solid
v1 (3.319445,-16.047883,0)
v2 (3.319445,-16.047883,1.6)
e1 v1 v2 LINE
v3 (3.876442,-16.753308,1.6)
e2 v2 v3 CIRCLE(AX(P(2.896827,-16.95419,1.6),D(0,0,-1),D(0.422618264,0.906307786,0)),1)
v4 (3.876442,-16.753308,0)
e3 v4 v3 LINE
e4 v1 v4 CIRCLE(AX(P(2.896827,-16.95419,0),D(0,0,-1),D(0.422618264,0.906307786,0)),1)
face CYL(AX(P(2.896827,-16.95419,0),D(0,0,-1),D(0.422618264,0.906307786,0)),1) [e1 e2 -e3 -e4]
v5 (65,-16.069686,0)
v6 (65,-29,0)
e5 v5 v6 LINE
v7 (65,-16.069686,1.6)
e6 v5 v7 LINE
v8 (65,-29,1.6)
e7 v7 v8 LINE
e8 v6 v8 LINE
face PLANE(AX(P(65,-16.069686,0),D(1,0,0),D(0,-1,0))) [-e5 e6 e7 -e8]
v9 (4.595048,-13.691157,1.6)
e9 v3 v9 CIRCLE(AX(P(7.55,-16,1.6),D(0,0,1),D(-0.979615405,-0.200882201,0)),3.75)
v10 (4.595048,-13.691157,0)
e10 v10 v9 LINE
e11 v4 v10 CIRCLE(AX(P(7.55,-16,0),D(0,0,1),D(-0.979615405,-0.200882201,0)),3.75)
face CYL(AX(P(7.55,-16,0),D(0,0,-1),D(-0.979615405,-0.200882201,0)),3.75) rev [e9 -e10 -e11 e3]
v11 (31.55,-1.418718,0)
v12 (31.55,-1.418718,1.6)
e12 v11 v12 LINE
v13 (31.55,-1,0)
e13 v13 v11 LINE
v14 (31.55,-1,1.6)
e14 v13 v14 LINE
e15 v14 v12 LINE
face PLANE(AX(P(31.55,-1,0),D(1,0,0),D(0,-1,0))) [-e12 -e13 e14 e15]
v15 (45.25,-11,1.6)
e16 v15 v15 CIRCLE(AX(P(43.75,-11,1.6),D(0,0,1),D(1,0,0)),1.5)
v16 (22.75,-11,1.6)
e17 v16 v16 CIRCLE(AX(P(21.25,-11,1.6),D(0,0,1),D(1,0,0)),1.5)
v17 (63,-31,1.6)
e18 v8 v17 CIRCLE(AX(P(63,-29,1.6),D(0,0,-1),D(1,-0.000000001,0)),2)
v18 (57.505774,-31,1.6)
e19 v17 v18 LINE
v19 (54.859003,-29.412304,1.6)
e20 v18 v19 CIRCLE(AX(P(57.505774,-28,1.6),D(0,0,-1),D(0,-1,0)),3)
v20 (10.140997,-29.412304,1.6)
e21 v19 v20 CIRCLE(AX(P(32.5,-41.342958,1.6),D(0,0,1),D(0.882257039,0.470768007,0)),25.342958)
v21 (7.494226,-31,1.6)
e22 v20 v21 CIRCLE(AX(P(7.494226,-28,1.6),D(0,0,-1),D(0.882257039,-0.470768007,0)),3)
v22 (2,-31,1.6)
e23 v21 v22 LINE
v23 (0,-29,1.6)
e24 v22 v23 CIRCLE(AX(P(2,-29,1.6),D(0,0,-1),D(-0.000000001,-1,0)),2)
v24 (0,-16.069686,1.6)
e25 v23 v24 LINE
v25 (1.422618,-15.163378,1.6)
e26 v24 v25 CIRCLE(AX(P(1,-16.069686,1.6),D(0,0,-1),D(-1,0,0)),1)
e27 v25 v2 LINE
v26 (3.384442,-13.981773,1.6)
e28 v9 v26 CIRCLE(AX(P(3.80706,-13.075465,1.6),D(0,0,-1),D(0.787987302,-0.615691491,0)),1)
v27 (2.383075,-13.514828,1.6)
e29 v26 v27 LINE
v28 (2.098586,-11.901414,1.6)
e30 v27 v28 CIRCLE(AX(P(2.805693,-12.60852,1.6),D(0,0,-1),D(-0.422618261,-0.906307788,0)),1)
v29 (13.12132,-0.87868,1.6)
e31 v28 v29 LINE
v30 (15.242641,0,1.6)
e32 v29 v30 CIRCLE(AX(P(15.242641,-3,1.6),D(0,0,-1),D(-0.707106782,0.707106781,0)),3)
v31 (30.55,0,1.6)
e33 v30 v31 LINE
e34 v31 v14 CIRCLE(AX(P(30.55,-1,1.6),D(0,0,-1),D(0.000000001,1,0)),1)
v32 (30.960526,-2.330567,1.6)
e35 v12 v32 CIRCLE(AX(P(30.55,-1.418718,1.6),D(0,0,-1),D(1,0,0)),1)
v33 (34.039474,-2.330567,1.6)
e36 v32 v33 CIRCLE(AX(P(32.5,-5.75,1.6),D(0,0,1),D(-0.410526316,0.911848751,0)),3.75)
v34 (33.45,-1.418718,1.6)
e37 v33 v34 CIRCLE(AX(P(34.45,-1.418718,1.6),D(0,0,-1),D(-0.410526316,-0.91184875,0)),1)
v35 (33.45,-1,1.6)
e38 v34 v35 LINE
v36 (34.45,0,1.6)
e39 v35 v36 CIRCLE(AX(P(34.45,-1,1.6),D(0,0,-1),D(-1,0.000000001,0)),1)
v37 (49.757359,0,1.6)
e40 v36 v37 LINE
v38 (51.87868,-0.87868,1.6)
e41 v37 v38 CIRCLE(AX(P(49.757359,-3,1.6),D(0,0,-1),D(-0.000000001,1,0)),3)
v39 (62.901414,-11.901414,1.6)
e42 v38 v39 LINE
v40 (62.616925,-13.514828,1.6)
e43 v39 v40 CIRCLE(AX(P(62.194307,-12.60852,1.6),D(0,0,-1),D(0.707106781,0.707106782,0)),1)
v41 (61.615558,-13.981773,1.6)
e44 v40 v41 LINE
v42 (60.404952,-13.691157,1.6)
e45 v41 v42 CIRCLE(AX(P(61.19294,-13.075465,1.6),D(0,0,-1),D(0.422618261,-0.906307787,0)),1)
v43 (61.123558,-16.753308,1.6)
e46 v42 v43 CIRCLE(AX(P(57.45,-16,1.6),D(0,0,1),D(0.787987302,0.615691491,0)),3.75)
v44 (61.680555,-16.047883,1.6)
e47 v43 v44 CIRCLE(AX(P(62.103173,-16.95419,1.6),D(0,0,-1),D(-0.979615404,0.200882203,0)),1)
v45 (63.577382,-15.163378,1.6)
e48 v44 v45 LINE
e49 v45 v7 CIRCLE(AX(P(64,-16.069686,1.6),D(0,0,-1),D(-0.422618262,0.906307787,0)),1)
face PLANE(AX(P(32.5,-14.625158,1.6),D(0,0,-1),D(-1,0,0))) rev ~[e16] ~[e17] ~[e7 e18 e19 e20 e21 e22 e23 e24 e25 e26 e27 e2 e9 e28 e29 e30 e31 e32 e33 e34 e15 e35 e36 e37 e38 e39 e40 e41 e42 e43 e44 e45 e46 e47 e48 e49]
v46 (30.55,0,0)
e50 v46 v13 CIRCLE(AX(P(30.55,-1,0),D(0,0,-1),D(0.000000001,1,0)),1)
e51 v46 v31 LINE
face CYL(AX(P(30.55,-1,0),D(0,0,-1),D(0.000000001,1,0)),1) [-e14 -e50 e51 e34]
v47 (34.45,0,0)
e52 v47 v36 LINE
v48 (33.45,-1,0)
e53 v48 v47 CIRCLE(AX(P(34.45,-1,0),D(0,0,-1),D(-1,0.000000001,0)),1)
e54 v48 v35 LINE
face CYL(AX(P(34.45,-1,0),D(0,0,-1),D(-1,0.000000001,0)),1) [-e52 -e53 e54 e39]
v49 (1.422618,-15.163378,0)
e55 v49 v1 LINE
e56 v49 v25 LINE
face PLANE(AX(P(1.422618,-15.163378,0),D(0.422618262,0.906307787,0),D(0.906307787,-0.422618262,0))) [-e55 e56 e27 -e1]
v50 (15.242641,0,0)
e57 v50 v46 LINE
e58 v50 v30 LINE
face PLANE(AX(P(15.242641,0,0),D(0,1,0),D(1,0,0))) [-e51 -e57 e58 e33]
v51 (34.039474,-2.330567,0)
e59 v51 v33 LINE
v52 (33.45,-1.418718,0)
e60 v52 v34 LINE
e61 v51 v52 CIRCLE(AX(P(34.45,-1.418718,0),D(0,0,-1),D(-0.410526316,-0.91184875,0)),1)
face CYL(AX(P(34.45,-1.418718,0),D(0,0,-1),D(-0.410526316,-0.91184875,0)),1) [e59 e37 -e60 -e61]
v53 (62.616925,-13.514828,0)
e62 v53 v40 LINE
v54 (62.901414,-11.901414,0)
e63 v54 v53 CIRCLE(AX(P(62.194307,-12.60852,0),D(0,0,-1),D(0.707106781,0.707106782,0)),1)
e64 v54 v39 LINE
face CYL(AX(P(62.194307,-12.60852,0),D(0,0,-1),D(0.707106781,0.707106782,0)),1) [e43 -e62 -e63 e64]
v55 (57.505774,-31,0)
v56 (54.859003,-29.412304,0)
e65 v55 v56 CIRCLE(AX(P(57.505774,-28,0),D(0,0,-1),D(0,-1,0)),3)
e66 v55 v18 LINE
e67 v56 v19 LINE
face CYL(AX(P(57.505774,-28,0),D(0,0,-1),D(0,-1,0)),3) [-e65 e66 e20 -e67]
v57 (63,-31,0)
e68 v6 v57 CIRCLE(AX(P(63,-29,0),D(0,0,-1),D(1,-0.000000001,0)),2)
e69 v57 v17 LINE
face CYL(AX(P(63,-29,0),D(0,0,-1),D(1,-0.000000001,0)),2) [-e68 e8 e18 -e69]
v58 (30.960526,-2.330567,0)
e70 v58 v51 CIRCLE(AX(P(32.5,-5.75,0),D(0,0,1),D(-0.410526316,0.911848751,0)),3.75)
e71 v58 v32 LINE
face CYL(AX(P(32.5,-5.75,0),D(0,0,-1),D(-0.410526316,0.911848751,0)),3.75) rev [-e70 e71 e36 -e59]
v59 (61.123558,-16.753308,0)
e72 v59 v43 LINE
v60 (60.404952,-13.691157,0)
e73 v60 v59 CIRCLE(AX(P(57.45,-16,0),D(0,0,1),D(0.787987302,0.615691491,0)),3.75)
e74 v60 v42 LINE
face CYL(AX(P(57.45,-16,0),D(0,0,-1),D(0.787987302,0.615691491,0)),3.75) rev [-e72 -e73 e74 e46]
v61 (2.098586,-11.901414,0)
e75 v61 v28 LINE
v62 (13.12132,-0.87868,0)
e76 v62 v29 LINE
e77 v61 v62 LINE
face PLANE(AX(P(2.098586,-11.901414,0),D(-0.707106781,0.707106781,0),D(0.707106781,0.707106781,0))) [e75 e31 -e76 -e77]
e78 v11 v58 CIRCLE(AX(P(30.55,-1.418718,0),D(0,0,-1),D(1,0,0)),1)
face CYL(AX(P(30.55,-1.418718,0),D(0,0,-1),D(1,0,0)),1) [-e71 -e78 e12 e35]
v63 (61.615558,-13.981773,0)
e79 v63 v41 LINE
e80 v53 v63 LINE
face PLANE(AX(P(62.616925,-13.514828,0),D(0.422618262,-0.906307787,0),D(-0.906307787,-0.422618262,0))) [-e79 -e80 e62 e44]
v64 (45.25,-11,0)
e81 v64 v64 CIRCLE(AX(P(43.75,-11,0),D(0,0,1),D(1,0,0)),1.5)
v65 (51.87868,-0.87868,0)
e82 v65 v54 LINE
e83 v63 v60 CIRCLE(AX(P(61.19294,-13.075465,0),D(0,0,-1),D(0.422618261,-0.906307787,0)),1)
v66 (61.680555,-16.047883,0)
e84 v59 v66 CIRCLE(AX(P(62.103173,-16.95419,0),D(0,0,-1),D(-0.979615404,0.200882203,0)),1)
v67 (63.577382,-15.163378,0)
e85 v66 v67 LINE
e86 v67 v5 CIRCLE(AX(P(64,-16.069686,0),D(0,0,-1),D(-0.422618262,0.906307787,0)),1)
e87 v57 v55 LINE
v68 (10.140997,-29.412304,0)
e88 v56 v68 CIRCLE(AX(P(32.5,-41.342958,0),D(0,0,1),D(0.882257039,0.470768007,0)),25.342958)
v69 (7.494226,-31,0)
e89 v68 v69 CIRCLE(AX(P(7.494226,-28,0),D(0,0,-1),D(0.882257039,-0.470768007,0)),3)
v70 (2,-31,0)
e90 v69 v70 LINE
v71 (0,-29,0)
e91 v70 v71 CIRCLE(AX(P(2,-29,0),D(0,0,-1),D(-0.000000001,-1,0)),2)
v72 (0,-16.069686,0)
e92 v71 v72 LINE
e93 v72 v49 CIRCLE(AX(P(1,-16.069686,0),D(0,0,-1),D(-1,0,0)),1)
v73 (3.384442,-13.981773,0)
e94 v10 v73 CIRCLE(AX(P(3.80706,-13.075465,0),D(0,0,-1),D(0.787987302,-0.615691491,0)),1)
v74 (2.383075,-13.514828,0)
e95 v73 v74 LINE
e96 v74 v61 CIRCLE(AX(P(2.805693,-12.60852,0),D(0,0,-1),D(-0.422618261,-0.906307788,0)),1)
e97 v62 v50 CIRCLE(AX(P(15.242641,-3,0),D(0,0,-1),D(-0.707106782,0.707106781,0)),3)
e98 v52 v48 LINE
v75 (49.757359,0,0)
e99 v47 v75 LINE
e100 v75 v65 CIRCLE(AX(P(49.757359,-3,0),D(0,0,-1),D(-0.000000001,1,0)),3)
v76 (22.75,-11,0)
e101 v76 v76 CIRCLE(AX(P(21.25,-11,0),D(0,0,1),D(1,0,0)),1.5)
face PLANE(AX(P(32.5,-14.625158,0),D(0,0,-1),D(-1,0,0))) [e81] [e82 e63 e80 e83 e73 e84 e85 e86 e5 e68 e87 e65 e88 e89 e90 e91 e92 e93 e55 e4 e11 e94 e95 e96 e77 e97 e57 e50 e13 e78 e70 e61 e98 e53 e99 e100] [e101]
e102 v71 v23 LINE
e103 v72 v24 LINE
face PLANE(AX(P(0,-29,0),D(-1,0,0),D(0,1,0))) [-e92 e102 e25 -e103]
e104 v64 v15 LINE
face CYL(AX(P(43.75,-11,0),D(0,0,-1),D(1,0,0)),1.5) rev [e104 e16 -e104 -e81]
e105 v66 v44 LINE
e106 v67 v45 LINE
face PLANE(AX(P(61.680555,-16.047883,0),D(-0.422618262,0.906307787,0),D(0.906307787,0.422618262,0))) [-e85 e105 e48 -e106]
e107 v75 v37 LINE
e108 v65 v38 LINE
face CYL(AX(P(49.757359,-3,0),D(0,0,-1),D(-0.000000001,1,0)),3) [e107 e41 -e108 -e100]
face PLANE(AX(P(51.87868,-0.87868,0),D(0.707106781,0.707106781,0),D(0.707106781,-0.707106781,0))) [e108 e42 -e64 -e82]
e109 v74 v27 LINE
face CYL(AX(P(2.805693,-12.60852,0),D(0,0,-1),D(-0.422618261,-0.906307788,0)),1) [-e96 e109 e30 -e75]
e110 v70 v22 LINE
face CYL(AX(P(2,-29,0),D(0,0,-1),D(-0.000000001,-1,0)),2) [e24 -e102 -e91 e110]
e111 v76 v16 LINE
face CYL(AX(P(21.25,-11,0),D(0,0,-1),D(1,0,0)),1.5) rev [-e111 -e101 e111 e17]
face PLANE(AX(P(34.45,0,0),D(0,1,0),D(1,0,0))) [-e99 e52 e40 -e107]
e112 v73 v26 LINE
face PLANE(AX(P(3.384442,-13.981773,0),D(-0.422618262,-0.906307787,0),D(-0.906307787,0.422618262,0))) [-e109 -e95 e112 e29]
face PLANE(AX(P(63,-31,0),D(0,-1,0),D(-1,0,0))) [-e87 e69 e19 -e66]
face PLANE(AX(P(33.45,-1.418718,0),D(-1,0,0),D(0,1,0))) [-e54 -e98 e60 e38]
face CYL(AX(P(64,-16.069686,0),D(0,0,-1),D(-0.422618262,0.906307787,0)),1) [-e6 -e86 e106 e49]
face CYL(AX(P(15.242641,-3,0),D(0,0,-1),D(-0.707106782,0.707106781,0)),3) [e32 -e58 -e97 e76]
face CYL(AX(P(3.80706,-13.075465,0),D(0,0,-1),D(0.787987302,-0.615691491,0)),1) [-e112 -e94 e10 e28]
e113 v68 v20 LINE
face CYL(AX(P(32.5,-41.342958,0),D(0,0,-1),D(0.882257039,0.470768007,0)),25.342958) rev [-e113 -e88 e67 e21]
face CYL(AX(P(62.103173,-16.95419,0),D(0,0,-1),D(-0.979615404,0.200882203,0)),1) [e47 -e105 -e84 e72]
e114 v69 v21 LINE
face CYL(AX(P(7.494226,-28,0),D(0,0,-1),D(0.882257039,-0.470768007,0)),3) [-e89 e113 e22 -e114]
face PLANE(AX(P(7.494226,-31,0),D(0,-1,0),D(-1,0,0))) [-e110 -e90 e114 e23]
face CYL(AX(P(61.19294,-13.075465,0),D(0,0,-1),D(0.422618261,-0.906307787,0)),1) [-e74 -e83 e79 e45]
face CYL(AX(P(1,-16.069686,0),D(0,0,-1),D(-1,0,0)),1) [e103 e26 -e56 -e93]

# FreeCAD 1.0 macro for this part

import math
import FreeCAD as App
import Part
import Sketcher
from FreeCAD import Vector
Q = App.Units.Quantity

doc = App.newDocument("Part")
body = doc.addObject("PartDesign::Body", "Body")

# Sketch on XY plane
sketch1 = body.newObject("Sketcher::SketchObject", "Sketch")
sketch1.AttachmentSupport = (doc.getObject("XY_Plane"), [""])
sketch1.MapMode = "FlatFace"
sketch1.addGeometry([
    Part.LineSegment(Vector(62.9, -11.9, 0), Vector(51.88, -0.88, 0)),  # 0
    Part.ArcOfCircle(Part.Circle(Vector(49.76, -3, 0), Vector(0, 0, 1), 3), math.radians(45), math.radians(90)),  # 1
    Part.LineSegment(Vector(49.76, 0, 0), Vector(34.45, 0, 0)),  # 2
    Part.ArcOfCircle(Part.Circle(Vector(34.45, -1, 0), Vector(0, 0, 1), 1), math.radians(90), math.radians(180)),  # 3
    Part.LineSegment(Vector(33.45, -1, 0), Vector(33.45, -1.42, 0)),  # 4
    Part.ArcOfCircle(Part.Circle(Vector(34.45, -1.42, 0), Vector(0, 0, 1), 1), math.radians(180), math.radians(246)),  # 5
    Part.ArcOfCircle(Part.Circle(Vector(32.5, -5.75, 0), Vector(0, 0, 1), 3.75), math.radians(114), math.radians(426)),  # 6
    Part.ArcOfCircle(Part.Circle(Vector(30.55, -1.42, 0), Vector(0, 0, 1), 1), math.radians(-66), math.radians(0)),  # 7
    Part.LineSegment(Vector(31.55, -1.42, 0), Vector(31.55, -1, 0)),  # 8
    Part.ArcOfCircle(Part.Circle(Vector(30.55, -1, 0), Vector(0, 0, 1), 1), math.radians(0), math.radians(90)),  # 9
    Part.LineSegment(Vector(30.55, 0, 0), Vector(15.24, 0, 0)),  # 10
    Part.ArcOfCircle(Part.Circle(Vector(15.24, -3, 0), Vector(0, 0, 1), 3), math.radians(90), math.radians(135)),  # 11
    Part.LineSegment(Vector(13.12, -0.88, 0), Vector(2.1, -11.9, 0)),  # 12
    Part.ArcOfCircle(Part.Circle(Vector(2.81, -12.61, 0), Vector(0, 0, 1), 1), math.radians(135), math.radians(245)),  # 13
    Part.LineSegment(Vector(2.38, -13.51, 0), Vector(3.38, -13.98, 0)),  # 14
    Part.ArcOfCircle(Part.Circle(Vector(3.81, -13.08, 0), Vector(0, 0, 1), 1), math.radians(-115), math.radians(-38)),  # 15
    Part.ArcOfCircle(Part.Circle(Vector(7.55, -16, 0), Vector(0, 0, 1), 3.75), math.radians(-168), math.radians(142)),  # 16
    Part.ArcOfCircle(Part.Circle(Vector(2.9, -16.95, 0), Vector(0, 0, 1), 1), math.radians(12), math.radians(65)),  # 17
    Part.LineSegment(Vector(3.32, -16.05, 0), Vector(1.42, -15.16, 0)),  # 18
    Part.ArcOfCircle(Part.Circle(Vector(1, -16.07, 0), Vector(0, 0, 1), 1), math.radians(65), math.radians(180)),  # 19
    Part.LineSegment(Vector(0, -16.07, 0), Vector(0, -29, 0)),  # 20
    Part.ArcOfCircle(Part.Circle(Vector(2, -29, 0), Vector(0, 0, 1), 2), math.radians(-180), math.radians(-90)),  # 21
    Part.LineSegment(Vector(2, -31, 0), Vector(7.49, -31, 0)),  # 22
    Part.ArcOfCircle(Part.Circle(Vector(7.49, -28, 0), Vector(0, 0, 1), 3), math.radians(-90), math.radians(-28)),  # 23
    Part.ArcOfCircle(Part.Circle(Vector(32.5, -41.34, 0), Vector(0, 0, 1), 25.34), math.radians(28), math.radians(152)),  # 24
    Part.ArcOfCircle(Part.Circle(Vector(57.51, -28, 0), Vector(0, 0, 1), 3), math.radians(-152), math.radians(-90)),  # 25
    Part.LineSegment(Vector(57.51, -31, 0), Vector(63, -31, 0)),  # 26
    Part.ArcOfCircle(Part.Circle(Vector(63, -29, 0), Vector(0, 0, 1), 2), math.radians(-90), math.radians(0)),  # 27
    Part.LineSegment(Vector(65, -29, 0), Vector(65, -16.07, 0)),  # 28
    Part.ArcOfCircle(Part.Circle(Vector(64, -16.07, 0), Vector(0, 0, 1), 1), math.radians(0), math.radians(115)),  # 29
    Part.LineSegment(Vector(63.58, -15.16, 0), Vector(61.68, -16.05, 0)),  # 30
    Part.ArcOfCircle(Part.Circle(Vector(62.1, -16.95, 0), Vector(0, 0, 1), 1), math.radians(115), math.radians(168)),  # 31
    Part.ArcOfCircle(Part.Circle(Vector(57.45, -16, 0), Vector(0, 0, 1), 3.75), math.radians(38), math.radians(348)),  # 32
    Part.ArcOfCircle(Part.Circle(Vector(61.19, -13.08, 0), Vector(0, 0, 1), 1), math.radians(-142), math.radians(-65)),  # 33
    Part.LineSegment(Vector(61.62, -13.98, 0), Vector(62.62, -13.51, 0)),  # 34
    Part.ArcOfCircle(Part.Circle(Vector(62.19, -12.61, 0), Vector(0, 0, 1), 1), math.radians(-65), math.radians(45)),  # 35
    Part.Circle(Vector(43.75, -11, 0), Vector(0, 0, 1), 1.5),  # 36
    Part.Circle(Vector(21.25, -11, 0), Vector(0, 0, 1), 1.5),  # 37
], False)
sketch1.addConstraint([
    Sketcher.Constraint("Tangent", 0, 2, 1, 1),
    Sketcher.Constraint("Tangent", 1, 2, 2, 1),
    Sketcher.Constraint("Tangent", 2, 2, 3, 1),
    Sketcher.Constraint("Tangent", 3, 2, 4, 1),
    Sketcher.Constraint("Tangent", 4, 2, 5, 1),
    Sketcher.Constraint("Tangent", 5, 2, 6, 2),
    Sketcher.Constraint("Tangent", 6, 1, 7, 1),
    Sketcher.Constraint("Tangent", 7, 2, 8, 1),
    Sketcher.Constraint("Tangent", 8, 2, 9, 1),
    Sketcher.Constraint("Tangent", 9, 2, 10, 1),
    Sketcher.Constraint("Tangent", 10, 2, 11, 1),
    Sketcher.Constraint("Tangent", 11, 2, 12, 1),
    Sketcher.Constraint("Tangent", 12, 2, 13, 1),
    Sketcher.Constraint("Tangent", 13, 2, 14, 1),
    Sketcher.Constraint("Tangent", 14, 2, 15, 1),
    Sketcher.Constraint("Tangent", 15, 2, 16, 2),
    Sketcher.Constraint("Tangent", 16, 1, 17, 1),
    Sketcher.Constraint("Tangent", 17, 2, 18, 1),
    Sketcher.Constraint("Tangent", 18, 2, 19, 1),
    Sketcher.Constraint("Tangent", 19, 2, 20, 1),
    Sketcher.Constraint("Tangent", 20, 2, 21, 1),
    Sketcher.Constraint("Tangent", 21, 2, 22, 1),
    Sketcher.Constraint("Tangent", 22, 2, 23, 1),
    Sketcher.Constraint("Tangent", 23, 2, 24, 2),
    Sketcher.Constraint("Tangent", 24, 1, 25, 1),
    Sketcher.Constraint("Tangent", 25, 2, 26, 1),
    Sketcher.Constraint("Tangent", 26, 2, 27, 1),
    Sketcher.Constraint("Tangent", 27, 2, 28, 1),
    Sketcher.Constraint("Tangent", 28, 2, 29, 1),
    Sketcher.Constraint("Tangent", 29, 2, 30, 1),
    Sketcher.Constraint("Tangent", 30, 2, 31, 1),
    Sketcher.Constraint("Tangent", 31, 2, 32, 2),
    Sketcher.Constraint("Tangent", 32, 1, 33, 1),
    Sketcher.Constraint("Tangent", 33, 2, 34, 1),
    Sketcher.Constraint("Tangent", 34, 2, 35, 1),
    Sketcher.Constraint("Tangent", 35, 2, 0, 1),
    Sketcher.Constraint("Horizontal", 2),
    Sketcher.Constraint("Vertical", 4),
    Sketcher.Constraint("Vertical", 8),
    Sketcher.Constraint("Horizontal", 10),
    Sketcher.Constraint("Vertical", 20),
    Sketcher.Constraint("Horizontal", 22),
    Sketcher.Constraint("Horizontal", 26),
    Sketcher.Constraint("Vertical", 28),
    Sketcher.Constraint("Equal", 3, 5),
    Sketcher.Constraint("Equal", 5, 7),
    Sketcher.Constraint("Equal", 7, 9),
    Sketcher.Constraint("Equal", 1, 11),
    Sketcher.Constraint("Equal", 9, 13),
    Sketcher.Constraint("Equal", 13, 15),
    Sketcher.Constraint("Equal", 6, 16),
    Sketcher.Constraint("Equal", 15, 17),
    Sketcher.Constraint("Equal", 17, 19),
    Sketcher.Constraint("Equal", 11, 23),
    Sketcher.Constraint("Equal", 23, 25),
    Sketcher.Constraint("Equal", 21, 27),
    Sketcher.Constraint("Equal", 19, 29),
    Sketcher.Constraint("Equal", 29, 31),
    Sketcher.Constraint("Equal", 16, 32),
    Sketcher.Constraint("Equal", 31, 33),
    Sketcher.Constraint("Equal", 33, 35),
    Sketcher.Constraint("Equal", 36, 37),
    Sketcher.Constraint("PointOnObject", 1, 2, -1),
    Sketcher.Constraint("PointOnObject", 9, 2, -1),
    Sketcher.Constraint("PointOnObject", 19, 2, -2),
    Sketcher.Constraint("Perpendicular", 0, 12),
    Sketcher.Constraint("Parallel", 14, 18),
    Sketcher.Constraint("Parallel", 30, 34),
    Sketcher.Constraint("Horizontal", 5, 3, 7, 3),
    Sketcher.Constraint("Horizontal", 23, 3, 25, 3),
    Sketcher.Constraint("Horizontal", 19, 3, 29, 3),
    Sketcher.Constraint("Horizontal", 17, 3, 31, 3),
    Sketcher.Constraint("Horizontal", 16, 3, 32, 3),
    Sketcher.Constraint("Horizontal", 15, 3, 33, 3),
    Sketcher.Constraint("Horizontal", 13, 3, 35, 3),
    Sketcher.Constraint("Horizontal", 36, 3, 37, 3),
    Sketcher.Constraint("Horizontal", 0, 2, 11, 2),
    Sketcher.Constraint("Horizontal", 18, 2, 29, 2),
    Sketcher.Constraint("Vertical", 6, 3, 24, 3),
    Sketcher.Constraint("Equal", 2, 10),
    Sketcher.Constraint("Diameter", 36, 3.0),
    Sketcher.Constraint("Radius", 1, 3.0),
    Sketcher.Constraint("Radius", 3, 1.0),
    Sketcher.Constraint("Radius", 21, 2.0),
    Sketcher.Constraint("Angle", 14, Q("-25 deg")),
    Sketcher.Constraint("Radius", 6, 3.75),
    Sketcher.Constraint("DistanceY", 16, 3, -1, 1, 16.0),
    Sketcher.Constraint("DistanceY", 21, 3, -1, 1, 29.0),
    Sketcher.Constraint("DistanceX", -1, 1, 27, 3, 63.0),
    Sketcher.Constraint("DistanceY", 36, 3, -1, 1, 11.0),
    Sketcher.Constraint("DistanceX", 16, 3, 7, 3, 23.0),
    Sketcher.Constraint("DistanceX", 7, 3, 5, 3, 3.9),
    Sketcher.Constraint("DistanceX", 5, 3, 36, 3, 9.3),
    Sketcher.Constraint("DistanceX", 37, 3, 7, 3, 9.3),
    Sketcher.Constraint("DistanceY", 6, 3, -1, 1, 5.75),
    Sketcher.Constraint("Radius", 24, 25.342958),
    Sketcher.Constraint("DistanceX", 14, 2, 16, 1, 0.492),
    Sketcher.Constraint("Distance", 0, 15.5885),
    Sketcher.Constraint("DistanceX", 2, 2, 2, 1, 15.307359),
    Sketcher.Constraint("DistanceX", 17, 3, 23, 3, 4.597399),
])
pad1 = body.newObject("PartDesign::Pad", "Pad")
pad1.Profile = sketch1
pad1.Length = 1.6

doc.recompute()
